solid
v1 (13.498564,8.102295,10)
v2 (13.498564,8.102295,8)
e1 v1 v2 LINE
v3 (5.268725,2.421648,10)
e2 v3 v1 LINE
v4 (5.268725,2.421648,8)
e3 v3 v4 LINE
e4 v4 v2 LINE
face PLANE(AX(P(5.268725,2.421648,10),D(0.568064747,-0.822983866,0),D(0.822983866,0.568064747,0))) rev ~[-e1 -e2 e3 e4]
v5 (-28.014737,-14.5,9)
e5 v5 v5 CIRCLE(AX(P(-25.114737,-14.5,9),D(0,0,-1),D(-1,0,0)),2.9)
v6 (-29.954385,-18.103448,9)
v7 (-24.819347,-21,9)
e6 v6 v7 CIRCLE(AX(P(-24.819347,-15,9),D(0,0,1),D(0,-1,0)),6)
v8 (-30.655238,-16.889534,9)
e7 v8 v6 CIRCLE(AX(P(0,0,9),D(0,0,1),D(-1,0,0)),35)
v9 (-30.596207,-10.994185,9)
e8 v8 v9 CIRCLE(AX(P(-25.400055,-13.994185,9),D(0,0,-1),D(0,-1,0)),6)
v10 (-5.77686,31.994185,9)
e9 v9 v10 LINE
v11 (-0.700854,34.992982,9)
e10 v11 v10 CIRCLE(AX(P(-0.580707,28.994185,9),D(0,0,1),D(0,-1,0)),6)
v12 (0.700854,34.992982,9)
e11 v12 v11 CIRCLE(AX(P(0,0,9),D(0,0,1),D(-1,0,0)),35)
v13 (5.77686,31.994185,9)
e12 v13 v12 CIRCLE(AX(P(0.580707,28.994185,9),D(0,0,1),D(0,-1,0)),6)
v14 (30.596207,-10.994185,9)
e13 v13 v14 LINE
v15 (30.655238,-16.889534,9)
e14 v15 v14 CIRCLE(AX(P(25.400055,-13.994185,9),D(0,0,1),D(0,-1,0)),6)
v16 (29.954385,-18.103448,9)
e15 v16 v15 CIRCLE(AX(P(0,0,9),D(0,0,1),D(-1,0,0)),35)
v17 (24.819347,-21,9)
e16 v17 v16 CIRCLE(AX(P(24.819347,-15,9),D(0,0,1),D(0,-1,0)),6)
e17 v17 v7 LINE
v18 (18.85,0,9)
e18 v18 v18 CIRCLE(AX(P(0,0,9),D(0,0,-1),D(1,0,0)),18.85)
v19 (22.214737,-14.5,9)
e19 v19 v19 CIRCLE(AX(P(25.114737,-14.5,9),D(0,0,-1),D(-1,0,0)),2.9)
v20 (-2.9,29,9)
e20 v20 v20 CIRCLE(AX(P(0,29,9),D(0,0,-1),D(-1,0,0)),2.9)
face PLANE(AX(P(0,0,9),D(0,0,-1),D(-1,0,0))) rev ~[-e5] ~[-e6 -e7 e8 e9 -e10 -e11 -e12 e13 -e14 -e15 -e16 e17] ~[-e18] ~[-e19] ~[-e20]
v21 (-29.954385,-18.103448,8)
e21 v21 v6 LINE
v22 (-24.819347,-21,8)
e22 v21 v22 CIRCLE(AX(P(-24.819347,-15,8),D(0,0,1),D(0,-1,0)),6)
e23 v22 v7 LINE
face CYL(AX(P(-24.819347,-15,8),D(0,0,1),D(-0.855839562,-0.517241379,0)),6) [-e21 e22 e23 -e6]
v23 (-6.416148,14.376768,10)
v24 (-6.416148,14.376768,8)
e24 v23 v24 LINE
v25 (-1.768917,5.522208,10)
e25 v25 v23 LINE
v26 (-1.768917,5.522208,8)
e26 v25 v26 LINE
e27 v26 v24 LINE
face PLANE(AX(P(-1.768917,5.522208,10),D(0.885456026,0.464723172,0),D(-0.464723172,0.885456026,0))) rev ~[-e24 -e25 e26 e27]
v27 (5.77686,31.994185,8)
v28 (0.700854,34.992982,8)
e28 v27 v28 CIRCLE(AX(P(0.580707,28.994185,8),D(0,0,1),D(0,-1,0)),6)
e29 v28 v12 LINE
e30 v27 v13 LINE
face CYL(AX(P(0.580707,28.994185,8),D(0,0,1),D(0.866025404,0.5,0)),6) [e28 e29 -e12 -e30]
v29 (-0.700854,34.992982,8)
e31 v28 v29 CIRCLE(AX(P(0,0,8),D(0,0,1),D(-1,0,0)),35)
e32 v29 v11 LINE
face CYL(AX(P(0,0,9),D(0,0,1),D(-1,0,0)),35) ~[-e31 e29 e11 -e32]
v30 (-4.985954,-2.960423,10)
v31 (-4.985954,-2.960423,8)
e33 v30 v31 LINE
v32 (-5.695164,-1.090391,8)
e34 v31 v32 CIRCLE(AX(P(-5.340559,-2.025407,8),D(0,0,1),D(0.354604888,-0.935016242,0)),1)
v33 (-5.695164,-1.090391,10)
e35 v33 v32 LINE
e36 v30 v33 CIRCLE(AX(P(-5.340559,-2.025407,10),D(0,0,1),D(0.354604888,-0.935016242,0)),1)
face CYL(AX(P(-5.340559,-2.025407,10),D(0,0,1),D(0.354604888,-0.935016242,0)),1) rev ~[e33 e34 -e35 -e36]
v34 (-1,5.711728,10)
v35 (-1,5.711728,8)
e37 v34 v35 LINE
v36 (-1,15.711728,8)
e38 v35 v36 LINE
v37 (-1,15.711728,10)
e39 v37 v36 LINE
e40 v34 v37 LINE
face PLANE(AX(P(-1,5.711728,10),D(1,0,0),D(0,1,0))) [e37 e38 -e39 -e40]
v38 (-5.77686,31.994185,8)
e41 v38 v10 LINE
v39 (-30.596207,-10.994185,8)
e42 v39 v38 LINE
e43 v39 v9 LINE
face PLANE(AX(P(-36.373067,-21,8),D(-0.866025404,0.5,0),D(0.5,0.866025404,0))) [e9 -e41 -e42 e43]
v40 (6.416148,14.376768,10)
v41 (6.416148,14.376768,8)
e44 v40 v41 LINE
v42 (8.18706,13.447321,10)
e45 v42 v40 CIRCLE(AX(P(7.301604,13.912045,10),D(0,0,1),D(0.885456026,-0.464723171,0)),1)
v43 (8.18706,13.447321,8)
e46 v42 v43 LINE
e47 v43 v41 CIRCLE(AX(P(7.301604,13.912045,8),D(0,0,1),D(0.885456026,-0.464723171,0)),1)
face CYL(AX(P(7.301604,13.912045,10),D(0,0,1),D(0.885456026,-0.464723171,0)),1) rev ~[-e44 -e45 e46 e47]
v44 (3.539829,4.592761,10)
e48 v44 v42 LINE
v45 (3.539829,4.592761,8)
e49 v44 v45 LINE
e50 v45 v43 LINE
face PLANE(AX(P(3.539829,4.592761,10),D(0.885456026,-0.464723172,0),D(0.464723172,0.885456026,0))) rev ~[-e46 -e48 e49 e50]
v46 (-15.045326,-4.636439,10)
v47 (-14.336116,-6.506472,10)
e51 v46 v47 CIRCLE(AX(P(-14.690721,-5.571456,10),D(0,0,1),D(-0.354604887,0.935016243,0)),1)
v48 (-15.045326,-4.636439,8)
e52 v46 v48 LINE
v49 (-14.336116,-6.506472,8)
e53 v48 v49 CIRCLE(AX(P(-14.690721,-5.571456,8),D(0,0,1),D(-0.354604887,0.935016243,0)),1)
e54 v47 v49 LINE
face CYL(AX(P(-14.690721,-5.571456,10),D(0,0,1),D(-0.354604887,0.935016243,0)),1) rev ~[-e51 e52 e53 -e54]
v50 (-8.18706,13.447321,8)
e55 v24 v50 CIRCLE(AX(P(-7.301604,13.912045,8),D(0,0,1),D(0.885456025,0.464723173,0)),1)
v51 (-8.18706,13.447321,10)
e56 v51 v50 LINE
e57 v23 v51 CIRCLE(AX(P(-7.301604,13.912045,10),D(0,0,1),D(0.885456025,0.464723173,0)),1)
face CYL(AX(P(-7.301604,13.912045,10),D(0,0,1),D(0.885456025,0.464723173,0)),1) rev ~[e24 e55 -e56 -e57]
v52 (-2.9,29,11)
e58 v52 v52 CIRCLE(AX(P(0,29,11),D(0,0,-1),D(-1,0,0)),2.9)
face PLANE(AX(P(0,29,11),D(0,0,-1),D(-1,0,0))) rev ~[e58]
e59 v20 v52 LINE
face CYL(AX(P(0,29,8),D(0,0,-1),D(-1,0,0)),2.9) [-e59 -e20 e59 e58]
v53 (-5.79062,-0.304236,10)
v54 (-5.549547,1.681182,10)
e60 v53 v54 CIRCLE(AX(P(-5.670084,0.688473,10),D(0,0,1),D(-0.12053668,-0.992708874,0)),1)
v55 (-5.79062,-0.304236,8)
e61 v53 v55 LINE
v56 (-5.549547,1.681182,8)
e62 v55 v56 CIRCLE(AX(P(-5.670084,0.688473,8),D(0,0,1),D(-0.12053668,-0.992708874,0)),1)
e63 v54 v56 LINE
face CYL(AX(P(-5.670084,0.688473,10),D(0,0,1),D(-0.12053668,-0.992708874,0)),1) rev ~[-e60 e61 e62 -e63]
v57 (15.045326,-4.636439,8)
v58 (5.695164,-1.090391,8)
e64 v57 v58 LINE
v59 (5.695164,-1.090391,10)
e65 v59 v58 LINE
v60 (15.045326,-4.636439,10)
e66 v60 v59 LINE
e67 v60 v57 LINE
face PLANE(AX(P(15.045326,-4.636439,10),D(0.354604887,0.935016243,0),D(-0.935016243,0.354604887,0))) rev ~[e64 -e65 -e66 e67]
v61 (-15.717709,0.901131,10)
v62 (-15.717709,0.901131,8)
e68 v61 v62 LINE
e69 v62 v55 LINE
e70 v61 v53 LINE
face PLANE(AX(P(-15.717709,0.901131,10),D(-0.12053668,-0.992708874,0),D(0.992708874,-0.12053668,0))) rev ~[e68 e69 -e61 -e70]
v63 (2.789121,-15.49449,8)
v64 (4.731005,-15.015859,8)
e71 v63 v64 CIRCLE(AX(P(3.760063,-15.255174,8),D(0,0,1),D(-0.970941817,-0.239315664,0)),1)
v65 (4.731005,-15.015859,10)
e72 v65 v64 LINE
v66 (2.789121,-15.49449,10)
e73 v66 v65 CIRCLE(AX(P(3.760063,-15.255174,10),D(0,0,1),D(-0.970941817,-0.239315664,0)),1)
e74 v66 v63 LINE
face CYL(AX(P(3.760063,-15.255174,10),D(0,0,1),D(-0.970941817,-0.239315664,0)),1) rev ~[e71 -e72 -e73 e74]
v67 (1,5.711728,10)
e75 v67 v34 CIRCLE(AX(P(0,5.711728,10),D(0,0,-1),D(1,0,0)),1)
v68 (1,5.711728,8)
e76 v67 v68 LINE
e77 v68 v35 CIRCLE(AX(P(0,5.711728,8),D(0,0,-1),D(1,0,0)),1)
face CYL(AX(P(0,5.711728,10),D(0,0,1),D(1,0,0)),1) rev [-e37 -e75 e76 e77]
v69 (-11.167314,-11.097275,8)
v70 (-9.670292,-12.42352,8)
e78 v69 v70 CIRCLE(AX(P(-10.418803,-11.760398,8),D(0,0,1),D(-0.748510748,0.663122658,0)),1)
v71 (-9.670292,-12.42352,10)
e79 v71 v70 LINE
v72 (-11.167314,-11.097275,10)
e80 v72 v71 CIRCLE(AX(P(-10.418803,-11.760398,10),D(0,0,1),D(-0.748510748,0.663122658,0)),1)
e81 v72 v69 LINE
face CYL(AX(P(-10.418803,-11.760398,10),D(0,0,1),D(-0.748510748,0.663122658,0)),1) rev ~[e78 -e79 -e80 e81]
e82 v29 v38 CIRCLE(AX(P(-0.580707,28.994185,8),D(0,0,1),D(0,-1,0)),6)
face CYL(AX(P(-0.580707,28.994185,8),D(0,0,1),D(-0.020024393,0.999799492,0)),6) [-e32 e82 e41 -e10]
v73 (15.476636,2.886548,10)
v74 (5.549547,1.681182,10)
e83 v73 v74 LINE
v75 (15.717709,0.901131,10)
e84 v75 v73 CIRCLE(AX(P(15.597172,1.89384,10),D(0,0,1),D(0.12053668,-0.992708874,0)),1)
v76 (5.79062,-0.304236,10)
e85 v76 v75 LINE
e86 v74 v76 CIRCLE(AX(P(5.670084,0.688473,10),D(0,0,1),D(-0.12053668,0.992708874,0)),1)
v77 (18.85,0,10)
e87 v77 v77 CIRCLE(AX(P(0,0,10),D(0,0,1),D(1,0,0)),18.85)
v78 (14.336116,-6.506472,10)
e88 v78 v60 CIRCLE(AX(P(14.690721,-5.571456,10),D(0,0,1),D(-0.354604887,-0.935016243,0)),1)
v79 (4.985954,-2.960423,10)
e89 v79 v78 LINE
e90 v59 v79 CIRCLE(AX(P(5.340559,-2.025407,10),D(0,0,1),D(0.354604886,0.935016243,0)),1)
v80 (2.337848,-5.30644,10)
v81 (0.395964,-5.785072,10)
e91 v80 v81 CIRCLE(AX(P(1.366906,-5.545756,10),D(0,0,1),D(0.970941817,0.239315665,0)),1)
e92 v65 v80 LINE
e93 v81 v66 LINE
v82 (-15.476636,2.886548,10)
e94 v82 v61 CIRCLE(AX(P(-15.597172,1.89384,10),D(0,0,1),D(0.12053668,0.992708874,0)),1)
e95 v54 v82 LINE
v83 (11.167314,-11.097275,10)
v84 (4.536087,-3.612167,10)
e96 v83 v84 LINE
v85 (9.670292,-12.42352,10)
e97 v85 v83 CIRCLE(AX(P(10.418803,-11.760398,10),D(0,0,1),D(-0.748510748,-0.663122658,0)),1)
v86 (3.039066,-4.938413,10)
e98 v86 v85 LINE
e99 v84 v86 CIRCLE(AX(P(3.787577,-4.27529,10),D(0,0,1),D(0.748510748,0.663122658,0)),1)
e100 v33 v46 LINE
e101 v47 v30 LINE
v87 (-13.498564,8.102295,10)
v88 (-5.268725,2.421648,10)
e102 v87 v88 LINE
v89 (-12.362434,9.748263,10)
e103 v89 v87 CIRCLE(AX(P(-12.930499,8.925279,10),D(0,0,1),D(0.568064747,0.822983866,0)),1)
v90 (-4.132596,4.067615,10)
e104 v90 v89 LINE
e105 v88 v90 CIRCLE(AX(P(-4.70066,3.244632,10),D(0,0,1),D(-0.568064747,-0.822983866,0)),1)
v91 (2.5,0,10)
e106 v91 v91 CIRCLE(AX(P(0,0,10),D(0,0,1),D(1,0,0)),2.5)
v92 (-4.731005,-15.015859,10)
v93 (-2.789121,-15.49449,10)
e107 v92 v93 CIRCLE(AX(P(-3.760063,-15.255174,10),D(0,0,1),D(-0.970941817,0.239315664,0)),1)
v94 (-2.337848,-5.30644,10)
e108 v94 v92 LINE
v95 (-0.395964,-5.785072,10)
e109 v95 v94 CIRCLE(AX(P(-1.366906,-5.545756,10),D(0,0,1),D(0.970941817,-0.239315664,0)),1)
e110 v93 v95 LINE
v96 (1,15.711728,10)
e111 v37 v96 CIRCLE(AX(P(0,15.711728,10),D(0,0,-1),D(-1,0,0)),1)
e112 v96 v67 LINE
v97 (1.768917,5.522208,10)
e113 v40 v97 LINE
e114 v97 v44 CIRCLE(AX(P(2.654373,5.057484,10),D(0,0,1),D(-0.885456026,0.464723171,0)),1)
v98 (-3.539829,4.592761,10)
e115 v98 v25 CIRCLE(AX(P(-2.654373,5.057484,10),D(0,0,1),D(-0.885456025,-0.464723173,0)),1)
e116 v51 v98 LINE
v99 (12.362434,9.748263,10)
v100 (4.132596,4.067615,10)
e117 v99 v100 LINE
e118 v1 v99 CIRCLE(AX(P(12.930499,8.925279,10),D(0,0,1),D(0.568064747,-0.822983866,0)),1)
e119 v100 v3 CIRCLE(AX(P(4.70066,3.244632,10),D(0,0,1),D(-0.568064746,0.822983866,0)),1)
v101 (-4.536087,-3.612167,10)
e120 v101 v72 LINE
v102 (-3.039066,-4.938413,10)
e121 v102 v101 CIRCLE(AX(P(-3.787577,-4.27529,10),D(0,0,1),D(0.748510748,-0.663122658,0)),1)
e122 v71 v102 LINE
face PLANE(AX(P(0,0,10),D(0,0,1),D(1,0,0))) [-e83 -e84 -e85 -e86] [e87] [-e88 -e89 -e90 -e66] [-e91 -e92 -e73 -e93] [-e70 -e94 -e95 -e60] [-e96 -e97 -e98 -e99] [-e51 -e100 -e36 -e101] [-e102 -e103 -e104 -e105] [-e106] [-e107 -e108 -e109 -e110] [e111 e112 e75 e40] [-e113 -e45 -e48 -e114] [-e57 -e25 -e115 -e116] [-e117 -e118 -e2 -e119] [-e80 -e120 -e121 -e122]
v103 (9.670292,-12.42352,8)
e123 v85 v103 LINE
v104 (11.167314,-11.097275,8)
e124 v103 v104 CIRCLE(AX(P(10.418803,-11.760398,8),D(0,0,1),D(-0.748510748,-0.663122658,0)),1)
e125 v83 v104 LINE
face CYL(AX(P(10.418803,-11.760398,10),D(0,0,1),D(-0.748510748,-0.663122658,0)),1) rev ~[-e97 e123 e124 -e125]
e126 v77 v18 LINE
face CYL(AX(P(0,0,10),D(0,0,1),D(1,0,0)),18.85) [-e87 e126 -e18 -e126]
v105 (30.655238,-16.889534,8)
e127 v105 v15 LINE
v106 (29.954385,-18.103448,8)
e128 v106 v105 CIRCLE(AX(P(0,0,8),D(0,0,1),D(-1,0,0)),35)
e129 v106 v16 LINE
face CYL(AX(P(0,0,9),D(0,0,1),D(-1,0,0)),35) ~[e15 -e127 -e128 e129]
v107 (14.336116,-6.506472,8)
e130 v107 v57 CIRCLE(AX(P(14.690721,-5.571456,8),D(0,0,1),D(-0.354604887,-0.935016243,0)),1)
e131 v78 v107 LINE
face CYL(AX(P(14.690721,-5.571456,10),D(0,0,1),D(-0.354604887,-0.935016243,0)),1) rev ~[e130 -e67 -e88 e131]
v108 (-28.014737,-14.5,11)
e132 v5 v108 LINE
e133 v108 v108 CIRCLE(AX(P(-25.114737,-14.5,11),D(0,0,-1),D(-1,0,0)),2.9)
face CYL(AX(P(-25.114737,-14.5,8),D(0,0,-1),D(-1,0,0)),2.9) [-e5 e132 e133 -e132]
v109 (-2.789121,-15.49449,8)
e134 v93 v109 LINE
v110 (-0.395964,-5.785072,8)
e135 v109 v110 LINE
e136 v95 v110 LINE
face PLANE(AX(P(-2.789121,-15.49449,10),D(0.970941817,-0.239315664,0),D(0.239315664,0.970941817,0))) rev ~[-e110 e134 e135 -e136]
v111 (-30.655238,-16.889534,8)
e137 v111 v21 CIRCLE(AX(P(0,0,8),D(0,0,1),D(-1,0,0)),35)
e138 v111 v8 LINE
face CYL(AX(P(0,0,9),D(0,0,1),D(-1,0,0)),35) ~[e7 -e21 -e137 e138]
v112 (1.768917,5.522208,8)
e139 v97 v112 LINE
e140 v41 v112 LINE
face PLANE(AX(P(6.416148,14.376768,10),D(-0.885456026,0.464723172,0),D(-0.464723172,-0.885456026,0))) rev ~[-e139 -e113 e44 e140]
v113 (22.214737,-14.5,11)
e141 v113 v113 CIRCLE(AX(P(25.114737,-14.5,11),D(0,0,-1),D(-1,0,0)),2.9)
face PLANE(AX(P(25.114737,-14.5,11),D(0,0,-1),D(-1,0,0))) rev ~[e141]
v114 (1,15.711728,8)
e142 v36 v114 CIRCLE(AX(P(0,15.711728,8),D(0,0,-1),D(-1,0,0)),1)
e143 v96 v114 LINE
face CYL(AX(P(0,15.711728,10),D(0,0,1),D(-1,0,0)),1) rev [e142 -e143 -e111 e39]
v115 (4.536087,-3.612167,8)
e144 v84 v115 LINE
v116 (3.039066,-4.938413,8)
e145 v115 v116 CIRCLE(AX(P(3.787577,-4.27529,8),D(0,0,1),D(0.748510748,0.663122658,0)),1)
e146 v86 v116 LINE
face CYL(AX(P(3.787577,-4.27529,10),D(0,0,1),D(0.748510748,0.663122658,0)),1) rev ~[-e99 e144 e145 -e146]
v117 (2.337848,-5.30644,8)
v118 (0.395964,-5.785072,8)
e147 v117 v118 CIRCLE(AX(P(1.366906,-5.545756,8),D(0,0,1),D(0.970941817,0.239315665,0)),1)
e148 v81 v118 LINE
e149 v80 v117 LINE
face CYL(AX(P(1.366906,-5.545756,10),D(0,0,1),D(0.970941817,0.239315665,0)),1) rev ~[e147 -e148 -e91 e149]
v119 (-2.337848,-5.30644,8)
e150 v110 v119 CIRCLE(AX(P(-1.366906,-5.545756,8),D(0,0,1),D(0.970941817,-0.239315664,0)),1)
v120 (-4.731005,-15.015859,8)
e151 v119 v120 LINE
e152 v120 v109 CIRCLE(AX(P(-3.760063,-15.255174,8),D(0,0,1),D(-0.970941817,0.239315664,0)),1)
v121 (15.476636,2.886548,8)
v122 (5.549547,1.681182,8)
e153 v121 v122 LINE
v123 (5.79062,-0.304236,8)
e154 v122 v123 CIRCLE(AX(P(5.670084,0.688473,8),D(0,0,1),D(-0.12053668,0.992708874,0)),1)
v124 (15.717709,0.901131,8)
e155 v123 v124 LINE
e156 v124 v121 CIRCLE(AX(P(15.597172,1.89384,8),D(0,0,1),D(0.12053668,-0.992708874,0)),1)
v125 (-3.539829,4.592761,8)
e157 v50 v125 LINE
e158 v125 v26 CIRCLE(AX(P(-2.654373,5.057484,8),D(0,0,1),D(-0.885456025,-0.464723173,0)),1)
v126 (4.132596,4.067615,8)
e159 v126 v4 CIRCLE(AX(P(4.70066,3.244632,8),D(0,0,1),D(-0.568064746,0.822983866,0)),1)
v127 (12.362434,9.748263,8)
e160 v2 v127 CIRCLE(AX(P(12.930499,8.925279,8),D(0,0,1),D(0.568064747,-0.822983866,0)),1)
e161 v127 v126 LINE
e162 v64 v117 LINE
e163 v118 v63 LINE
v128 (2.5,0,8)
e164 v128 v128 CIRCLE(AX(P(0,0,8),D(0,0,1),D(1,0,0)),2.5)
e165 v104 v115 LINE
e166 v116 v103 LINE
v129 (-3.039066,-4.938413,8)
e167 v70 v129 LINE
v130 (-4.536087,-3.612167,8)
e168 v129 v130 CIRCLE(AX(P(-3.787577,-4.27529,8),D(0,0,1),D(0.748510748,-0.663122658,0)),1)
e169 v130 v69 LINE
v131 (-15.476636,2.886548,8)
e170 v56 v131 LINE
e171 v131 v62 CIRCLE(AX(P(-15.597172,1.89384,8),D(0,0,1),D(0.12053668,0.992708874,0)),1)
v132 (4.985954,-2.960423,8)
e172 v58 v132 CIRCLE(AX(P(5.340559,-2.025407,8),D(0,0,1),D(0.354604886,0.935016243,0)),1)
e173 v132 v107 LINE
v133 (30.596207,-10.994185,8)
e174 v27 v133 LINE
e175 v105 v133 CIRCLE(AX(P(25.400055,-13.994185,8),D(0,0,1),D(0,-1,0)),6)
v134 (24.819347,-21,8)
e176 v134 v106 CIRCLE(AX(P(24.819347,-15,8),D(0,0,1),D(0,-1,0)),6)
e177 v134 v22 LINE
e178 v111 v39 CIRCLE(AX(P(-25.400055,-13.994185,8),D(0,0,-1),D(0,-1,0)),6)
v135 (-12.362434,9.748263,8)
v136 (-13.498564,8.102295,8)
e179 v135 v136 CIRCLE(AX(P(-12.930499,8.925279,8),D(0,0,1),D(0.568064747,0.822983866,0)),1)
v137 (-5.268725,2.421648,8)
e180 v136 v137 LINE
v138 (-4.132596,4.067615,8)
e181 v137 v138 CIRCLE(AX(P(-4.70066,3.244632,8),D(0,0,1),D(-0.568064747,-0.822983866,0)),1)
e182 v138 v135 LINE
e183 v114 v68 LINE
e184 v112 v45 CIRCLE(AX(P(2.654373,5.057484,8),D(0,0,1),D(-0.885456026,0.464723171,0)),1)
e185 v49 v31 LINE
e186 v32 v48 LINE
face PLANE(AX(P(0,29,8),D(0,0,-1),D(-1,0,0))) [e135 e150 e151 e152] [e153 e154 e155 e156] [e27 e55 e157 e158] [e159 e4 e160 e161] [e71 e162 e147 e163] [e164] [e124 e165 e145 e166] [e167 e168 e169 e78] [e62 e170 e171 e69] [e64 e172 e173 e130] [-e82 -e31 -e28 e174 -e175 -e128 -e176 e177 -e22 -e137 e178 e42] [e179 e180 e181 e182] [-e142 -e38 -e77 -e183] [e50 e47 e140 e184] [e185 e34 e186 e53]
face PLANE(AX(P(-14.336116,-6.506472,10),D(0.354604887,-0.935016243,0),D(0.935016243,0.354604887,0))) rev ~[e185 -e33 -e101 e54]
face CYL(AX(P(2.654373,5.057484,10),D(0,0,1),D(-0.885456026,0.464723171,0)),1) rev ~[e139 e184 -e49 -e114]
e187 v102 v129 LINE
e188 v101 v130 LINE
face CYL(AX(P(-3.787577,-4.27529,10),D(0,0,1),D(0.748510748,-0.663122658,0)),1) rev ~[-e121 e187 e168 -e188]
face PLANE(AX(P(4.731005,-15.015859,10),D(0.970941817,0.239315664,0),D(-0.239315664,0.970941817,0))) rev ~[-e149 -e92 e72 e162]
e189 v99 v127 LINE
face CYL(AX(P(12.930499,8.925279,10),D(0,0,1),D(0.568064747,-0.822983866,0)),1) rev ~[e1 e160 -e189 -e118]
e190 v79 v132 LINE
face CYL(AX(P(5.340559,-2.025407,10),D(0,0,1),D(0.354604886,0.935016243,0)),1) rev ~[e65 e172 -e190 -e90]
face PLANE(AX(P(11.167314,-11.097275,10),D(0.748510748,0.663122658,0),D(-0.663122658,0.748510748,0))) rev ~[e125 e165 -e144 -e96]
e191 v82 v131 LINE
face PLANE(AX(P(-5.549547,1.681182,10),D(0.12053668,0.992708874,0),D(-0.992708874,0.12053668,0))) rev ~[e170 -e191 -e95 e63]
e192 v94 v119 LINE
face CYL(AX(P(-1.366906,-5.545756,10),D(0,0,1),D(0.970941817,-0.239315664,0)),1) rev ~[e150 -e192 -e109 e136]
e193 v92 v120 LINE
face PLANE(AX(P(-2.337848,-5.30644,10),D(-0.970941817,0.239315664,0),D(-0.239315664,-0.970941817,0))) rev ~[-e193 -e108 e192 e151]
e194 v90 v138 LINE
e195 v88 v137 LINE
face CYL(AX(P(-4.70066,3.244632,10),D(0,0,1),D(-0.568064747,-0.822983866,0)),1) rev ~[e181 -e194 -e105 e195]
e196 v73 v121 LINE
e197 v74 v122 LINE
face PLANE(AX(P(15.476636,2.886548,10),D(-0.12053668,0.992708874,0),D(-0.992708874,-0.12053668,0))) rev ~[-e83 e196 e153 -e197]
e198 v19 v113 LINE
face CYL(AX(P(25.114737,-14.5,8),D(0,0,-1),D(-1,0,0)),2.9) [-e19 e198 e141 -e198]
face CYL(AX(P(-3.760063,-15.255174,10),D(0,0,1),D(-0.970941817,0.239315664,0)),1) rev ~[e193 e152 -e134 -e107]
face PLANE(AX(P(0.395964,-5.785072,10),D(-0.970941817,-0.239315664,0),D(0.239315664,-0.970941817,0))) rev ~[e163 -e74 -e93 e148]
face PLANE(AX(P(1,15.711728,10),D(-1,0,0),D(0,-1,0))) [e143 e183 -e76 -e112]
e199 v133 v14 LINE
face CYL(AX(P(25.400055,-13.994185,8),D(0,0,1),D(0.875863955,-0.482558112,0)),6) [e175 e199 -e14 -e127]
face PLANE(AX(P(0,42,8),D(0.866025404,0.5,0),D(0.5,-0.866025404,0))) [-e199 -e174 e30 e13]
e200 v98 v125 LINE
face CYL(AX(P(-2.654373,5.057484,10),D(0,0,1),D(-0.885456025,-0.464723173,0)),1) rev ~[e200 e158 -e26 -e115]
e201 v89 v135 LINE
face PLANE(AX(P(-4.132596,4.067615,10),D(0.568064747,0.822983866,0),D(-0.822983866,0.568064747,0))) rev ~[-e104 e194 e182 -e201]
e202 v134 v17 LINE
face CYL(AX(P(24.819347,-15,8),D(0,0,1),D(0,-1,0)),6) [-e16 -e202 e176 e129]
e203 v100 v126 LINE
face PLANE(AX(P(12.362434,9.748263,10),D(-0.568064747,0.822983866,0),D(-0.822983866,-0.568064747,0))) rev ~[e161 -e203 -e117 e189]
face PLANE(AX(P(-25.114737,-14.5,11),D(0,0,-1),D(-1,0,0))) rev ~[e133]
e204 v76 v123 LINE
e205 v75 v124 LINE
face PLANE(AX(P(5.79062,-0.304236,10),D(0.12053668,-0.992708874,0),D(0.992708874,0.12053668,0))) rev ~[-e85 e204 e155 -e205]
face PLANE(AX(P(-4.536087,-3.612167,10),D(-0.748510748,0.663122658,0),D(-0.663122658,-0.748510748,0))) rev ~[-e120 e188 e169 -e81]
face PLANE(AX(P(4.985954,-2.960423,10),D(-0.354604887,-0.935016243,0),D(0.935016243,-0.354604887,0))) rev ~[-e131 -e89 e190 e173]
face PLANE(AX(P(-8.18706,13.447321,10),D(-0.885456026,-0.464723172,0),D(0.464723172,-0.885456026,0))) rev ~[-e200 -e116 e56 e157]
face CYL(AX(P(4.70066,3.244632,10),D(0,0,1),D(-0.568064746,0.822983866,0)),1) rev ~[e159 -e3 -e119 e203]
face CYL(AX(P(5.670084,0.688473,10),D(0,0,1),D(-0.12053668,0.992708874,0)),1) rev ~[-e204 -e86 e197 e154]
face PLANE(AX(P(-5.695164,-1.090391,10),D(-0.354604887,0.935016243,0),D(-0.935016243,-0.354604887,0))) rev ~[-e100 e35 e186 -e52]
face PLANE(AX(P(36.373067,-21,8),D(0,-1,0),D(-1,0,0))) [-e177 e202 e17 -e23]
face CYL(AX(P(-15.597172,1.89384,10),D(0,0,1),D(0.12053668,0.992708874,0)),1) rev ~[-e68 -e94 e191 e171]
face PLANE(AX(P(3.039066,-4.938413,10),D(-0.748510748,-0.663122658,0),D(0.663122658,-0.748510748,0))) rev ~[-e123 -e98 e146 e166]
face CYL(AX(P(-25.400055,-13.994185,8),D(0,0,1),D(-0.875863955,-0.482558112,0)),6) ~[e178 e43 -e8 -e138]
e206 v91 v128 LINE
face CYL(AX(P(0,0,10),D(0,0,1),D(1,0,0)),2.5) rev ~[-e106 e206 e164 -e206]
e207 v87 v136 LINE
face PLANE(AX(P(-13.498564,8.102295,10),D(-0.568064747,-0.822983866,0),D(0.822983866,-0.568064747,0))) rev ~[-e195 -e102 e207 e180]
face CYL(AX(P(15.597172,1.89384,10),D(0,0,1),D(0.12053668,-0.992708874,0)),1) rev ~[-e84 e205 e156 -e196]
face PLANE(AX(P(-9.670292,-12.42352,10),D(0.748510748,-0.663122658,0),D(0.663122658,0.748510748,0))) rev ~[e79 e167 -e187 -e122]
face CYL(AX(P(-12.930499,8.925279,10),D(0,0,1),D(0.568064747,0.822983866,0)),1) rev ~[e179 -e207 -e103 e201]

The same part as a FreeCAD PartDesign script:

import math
import FreeCAD as App
import Part
import Sketcher

V = App.Vector
Q = App.Units.Quantity


def edges_at(feature, points):
    """Names of the edges that pass closest to the given points."""
    edges = feature.Shape.Edges
    near = lambda p: min(range(len(edges)), key=lambda i: edges[i].distToShape(Part.Vertex(*p))[0])
    return sorted({f"Edge{near(p) + 1}" for p in points})

doc = App.newDocument("Part")
body = doc.addObject("PartDesign::Body", "Body")

# Sketch on XY plane
sketch1 = body.newObject("Sketcher::SketchObject", "Sketch")
sketch1.AttachmentSupport = (doc.getObject("XY_Plane"), [""])
sketch1.MapMode = "FlatFace"
sketch1.AttachmentOffset = App.Placement(V(0, 0, 10), App.Rotation())
sketch1.addGeometry(Part.Circle(V(0, 0, 0), V(0, 0, 1), 18.9), False)
sketch1.addGeometry(Part.LineSegment(V(-3, -4.9, 0), V(-9.7, -12.4, 0)), False)
sketch1.addGeometry(Part.ArcOfCircle(Part.Circle(V(-10.4, -11.8, 0), V(0, 0, 1), 1), math.radians(138), math.radians(318)), False)
sketch1.addGeometry(Part.LineSegment(V(-11.2, -11.1, 0), V(-4.5, -3.6, 0)), False)
sketch1.addGeometry(Part.ArcOfCircle(Part.Circle(V(-3.8, -4.3, 0), V(0, 0, 1), 1), math.radians(-42), math.radians(138)), False)
sketch1.addGeometry(Part.LineSegment(V(-0.4, -5.8, 0), V(-2.8, -15.5, 0)), False)
sketch1.addGeometry(Part.ArcOfCircle(Part.Circle(V(-3.8, -15.3, 0), V(0, 0, 1), 1), math.radians(166), math.radians(346)), False)
sketch1.addGeometry(Part.LineSegment(V(-4.7, -15, 0), V(-2.3, -5.3, 0)), False)
sketch1.addGeometry(Part.ArcOfCircle(Part.Circle(V(-1.4, -5.5, 0), V(0, 0, 1), 1), math.radians(-14), math.radians(166)), False)
sketch1.addGeometry(Part.LineSegment(V(-5, -3, 0), V(-14.3, -6.5, 0)), False)
sketch1.addGeometry(Part.ArcOfCircle(Part.Circle(V(-14.7, -5.6, 0), V(0, 0, 1), 1), math.radians(111), math.radians(291)), False)
sketch1.addGeometry(Part.LineSegment(V(-15, -4.6, 0), V(-5.7, -1.1, 0)), False)
sketch1.addGeometry(Part.ArcOfCircle(Part.Circle(V(-5.3, -2, 0), V(0, 0, 1), 1), math.radians(-69), math.radians(111)), False)
sketch1.addGeometry(Part.Circle(V(0, 0, 0), V(0, 0, 1), 2.5), False)
sketch1.addGeometry(Part.LineSegment(V(2.3, -5.3, 0), V(4.7, -15, 0)), False)
sketch1.addGeometry(Part.ArcOfCircle(Part.Circle(V(3.8, -15.3, 0), V(0, 0, 1), 1), math.radians(-166), math.radians(14)), False)
sketch1.addGeometry(Part.LineSegment(V(2.8, -15.5, 0), V(0.4, -5.8, 0)), False)
sketch1.addGeometry(Part.ArcOfCircle(Part.Circle(V(1.4, -5.5, 0), V(0, 0, 1), 1), math.radians(14), math.radians(194)), False)
sketch1.addGeometry(Part.LineSegment(V(4.5, -3.6, 0), V(11.2, -11.1, 0)), False)
sketch1.addGeometry(Part.ArcOfCircle(Part.Circle(V(10.4, -11.8, 0), V(0, 0, 1), 1), math.radians(-138), math.radians(42)), False)
sketch1.addGeometry(Part.LineSegment(V(9.7, -12.4, 0), V(3, -4.9, 0)), False)
sketch1.addGeometry(Part.ArcOfCircle(Part.Circle(V(3.8, -4.3, 0), V(0, 0, 1), 1), math.radians(42), math.radians(222)), False)
sketch1.addGeometry(Part.LineSegment(V(5.7, -1.1, 0), V(15, -4.6, 0)), False)
sketch1.addGeometry(Part.ArcOfCircle(Part.Circle(V(14.7, -5.6, 0), V(0, 0, 1), 1), math.radians(-111), math.radians(69)), False)
sketch1.addGeometry(Part.LineSegment(V(14.3, -6.5, 0), V(5, -3, 0)), False)
sketch1.addGeometry(Part.ArcOfCircle(Part.Circle(V(5.3, -2, 0), V(0, 0, 1), 1), math.radians(69), math.radians(249)), False)
sketch1.addGeometry(Part.LineSegment(V(-5.8, -0.3, 0), V(-15.7, 0.9, 0)), False)
sketch1.addGeometry(Part.ArcOfCircle(Part.Circle(V(-15.6, 1.9, 0), V(0, 0, 1), 1), math.radians(83), math.radians(263)), False)
sketch1.addGeometry(Part.LineSegment(V(-15.5, 2.9, 0), V(-5.5, 1.7, 0)), False)
sketch1.addGeometry(Part.ArcOfCircle(Part.Circle(V(-5.7, 0.7, 0), V(0, 0, 1), 1), math.radians(-97), math.radians(83)), False)
sketch1.addGeometry(Part.LineSegment(V(-5.3, 2.4, 0), V(-13.5, 8.1, 0)), False)
sketch1.addGeometry(Part.ArcOfCircle(Part.Circle(V(-12.9, 8.9, 0), V(0, 0, 1), 1), math.radians(55), math.radians(235)), False)
sketch1.addGeometry(Part.LineSegment(V(-12.4, 9.7, 0), V(-4.1, 4.1, 0)), False)
sketch1.addGeometry(Part.ArcOfCircle(Part.Circle(V(-4.7, 3.2, 0), V(0, 0, 1), 1), math.radians(-125), math.radians(55)), False)
sketch1.addGeometry(Part.LineSegment(V(-3.5, 4.6, 0), V(-8.2, 13.4, 0)), False)
sketch1.addGeometry(Part.ArcOfCircle(Part.Circle(V(-7.3, 13.9, 0), V(0, 0, 1), 1), math.radians(28), math.radians(208)), False)
sketch1.addGeometry(Part.LineSegment(V(-6.4, 14.4, 0), V(-1.8, 5.5, 0)), False)
sketch1.addGeometry(Part.ArcOfCircle(Part.Circle(V(-2.7, 5.1, 0), V(0, 0, 1), 1), math.radians(-152), math.radians(28)), False)
sketch1.addGeometry(Part.ArcOfCircle(Part.Circle(V(0, 15.7, 0), V(0, 0, 1), 1), math.radians(0), math.radians(180)), False)
sketch1.addGeometry(Part.LineSegment(V(1, 15.7, 0), V(1, 5.7, 0)), False)
sketch1.addGeometry(Part.ArcOfCircle(Part.Circle(V(0, 5.7, 0), V(0, 0, 1), 1), math.radians(180), math.radians(360)), False)
sketch1.addGeometry(Part.LineSegment(V(-1, 5.7, 0), V(-1, 15.7, 0)), False)
sketch1.addGeometry(Part.LineSegment(V(5.5, 1.7, 0), V(15.5, 2.9, 0)), False)
sketch1.addGeometry(Part.ArcOfCircle(Part.Circle(V(15.6, 1.9, 0), V(0, 0, 1), 1), math.radians(-83), math.radians(97)), False)
sketch1.addGeometry(Part.LineSegment(V(15.7, 0.9, 0), V(5.8, -0.3, 0)), False)
sketch1.addGeometry(Part.ArcOfCircle(Part.Circle(V(5.7, 0.7, 0), V(0, 0, 1), 1), math.radians(97), math.radians(277)), False)
sketch1.addGeometry(Part.LineSegment(V(4.1, 4.1, 0), V(12.4, 9.7, 0)), False)
sketch1.addGeometry(Part.ArcOfCircle(Part.Circle(V(12.9, 8.9, 0), V(0, 0, 1), 1), math.radians(-55), math.radians(125)), False)
sketch1.addGeometry(Part.LineSegment(V(13.5, 8.1, 0), V(5.3, 2.4, 0)), False)
sketch1.addGeometry(Part.ArcOfCircle(Part.Circle(V(4.7, 3.2, 0), V(0, 0, 1), 1), math.radians(125), math.radians(305)), False)
sketch1.addGeometry(Part.LineSegment(V(1.8, 5.5, 0), V(6.4, 14.4, 0)), False)
sketch1.addGeometry(Part.ArcOfCircle(Part.Circle(V(7.3, 13.9, 0), V(0, 0, 1), 1), math.radians(-28), math.radians(152)), False)
sketch1.addGeometry(Part.LineSegment(V(8.2, 13.4, 0), V(3.5, 4.6, 0)), False)
sketch1.addGeometry(Part.ArcOfCircle(Part.Circle(V(2.7, 5.1, 0), V(0, 0, 1), 1), math.radians(152), math.radians(332)), False)
sketch1.addConstraint(Sketcher.Constraint("Tangent", 1, 2, 2, 2))
sketch1.addConstraint(Sketcher.Constraint("Tangent", 2, 1, 3, 1))
sketch1.addConstraint(Sketcher.Constraint("Tangent", 3, 2, 4, 2))
sketch1.addConstraint(Sketcher.Constraint("Tangent", 4, 1, 1, 1))
sketch1.addConstraint(Sketcher.Constraint("Tangent", 5, 2, 6, 2))
sketch1.addConstraint(Sketcher.Constraint("Tangent", 6, 1, 7, 1))
sketch1.addConstraint(Sketcher.Constraint("Tangent", 7, 2, 8, 2))
sketch1.addConstraint(Sketcher.Constraint("Tangent", 8, 1, 5, 1))
sketch1.addConstraint(Sketcher.Constraint("Tangent", 9, 2, 10, 2))
sketch1.addConstraint(Sketcher.Constraint("Tangent", 10, 1, 11, 1))
sketch1.addConstraint(Sketcher.Constraint("Tangent", 11, 2, 12, 2))
sketch1.addConstraint(Sketcher.Constraint("Tangent", 12, 1, 9, 1))
sketch1.addConstraint(Sketcher.Constraint("Tangent", 14, 2, 15, 2))
sketch1.addConstraint(Sketcher.Constraint("Tangent", 15, 1, 16, 1))
sketch1.addConstraint(Sketcher.Constraint("Tangent", 16, 2, 17, 2))
sketch1.addConstraint(Sketcher.Constraint("Tangent", 17, 1, 14, 1))
sketch1.addConstraint(Sketcher.Constraint("Tangent", 18, 2, 19, 2))
sketch1.addConstraint(Sketcher.Constraint("Tangent", 19, 1, 20, 1))
sketch1.addConstraint(Sketcher.Constraint("Tangent", 20, 2, 21, 2))
sketch1.addConstraint(Sketcher.Constraint("Tangent", 21, 1, 18, 1))
sketch1.addConstraint(Sketcher.Constraint("Tangent", 22, 2, 23, 2))
sketch1.addConstraint(Sketcher.Constraint("Tangent", 23, 1, 24, 1))
sketch1.addConstraint(Sketcher.Constraint("Tangent", 24, 2, 25, 2))
sketch1.addConstraint(Sketcher.Constraint("Tangent", 25, 1, 22, 1))
sketch1.addConstraint(Sketcher.Constraint("Tangent", 26, 2, 27, 2))
sketch1.addConstraint(Sketcher.Constraint("Tangent", 27, 1, 28, 1))
sketch1.addConstraint(Sketcher.Constraint("Tangent", 28, 2, 29, 2))
sketch1.addConstraint(Sketcher.Constraint("Tangent", 29, 1, 26, 1))
sketch1.addConstraint(Sketcher.Constraint("Tangent", 30, 2, 31, 2))
sketch1.addConstraint(Sketcher.Constraint("Tangent", 31, 1, 32, 1))
sketch1.addConstraint(Sketcher.Constraint("Tangent", 32, 2, 33, 2))
sketch1.addConstraint(Sketcher.Constraint("Tangent", 33, 1, 30, 1))
sketch1.addConstraint(Sketcher.Constraint("Tangent", 34, 2, 35, 2))
sketch1.addConstraint(Sketcher.Constraint("Tangent", 35, 1, 36, 1))
sketch1.addConstraint(Sketcher.Constraint("Tangent", 36, 2, 37, 2))
sketch1.addConstraint(Sketcher.Constraint("Tangent", 37, 1, 34, 1))
sketch1.addConstraint(Sketcher.Constraint("Tangent", 38, 1, 39, 1))
sketch1.addConstraint(Sketcher.Constraint("Tangent", 39, 2, 40, 2))
sketch1.addConstraint(Sketcher.Constraint("Tangent", 40, 1, 41, 1))
sketch1.addConstraint(Sketcher.Constraint("Tangent", 41, 2, 38, 2))
sketch1.addConstraint(Sketcher.Constraint("Tangent", 42, 2, 43, 2))
sketch1.addConstraint(Sketcher.Constraint("Tangent", 43, 1, 44, 1))
sketch1.addConstraint(Sketcher.Constraint("Tangent", 44, 2, 45, 2))
sketch1.addConstraint(Sketcher.Constraint("Tangent", 45, 1, 42, 1))
sketch1.addConstraint(Sketcher.Constraint("Tangent", 46, 2, 47, 2))
sketch1.addConstraint(Sketcher.Constraint("Tangent", 47, 1, 48, 1))
sketch1.addConstraint(Sketcher.Constraint("Tangent", 48, 2, 49, 2))
sketch1.addConstraint(Sketcher.Constraint("Tangent", 49, 1, 46, 1))
sketch1.addConstraint(Sketcher.Constraint("Tangent", 50, 2, 51, 2))
sketch1.addConstraint(Sketcher.Constraint("Tangent", 51, 1, 52, 1))
sketch1.addConstraint(Sketcher.Constraint("Tangent", 52, 2, 53, 2))
sketch1.addConstraint(Sketcher.Constraint("Tangent", 53, 1, 50, 1))
sketch1.addConstraint(Sketcher.Constraint("Vertical", 39))
sketch1.addConstraint(Sketcher.Constraint("Vertical", 41))
sketch1.addConstraint(Sketcher.Constraint("Coincident", 0, 3, -1, 1))
sketch1.addConstraint(Sketcher.Constraint("Coincident", 13, 3, -1, 1))
sketch1.addConstraint(Sketcher.Constraint("Equal", 2, 4))
sketch1.addConstraint(Sketcher.Constraint("Equal", 4, 6))
sketch1.addConstraint(Sketcher.Constraint("Equal", 6, 8))
sketch1.addConstraint(Sketcher.Constraint("Equal", 8, 10))
sketch1.addConstraint(Sketcher.Constraint("Equal", 10, 12))
sketch1.addConstraint(Sketcher.Constraint("Equal", 12, 15))
sketch1.addConstraint(Sketcher.Constraint("Equal", 15, 17))
sketch1.addConstraint(Sketcher.Constraint("Equal", 17, 19))
sketch1.addConstraint(Sketcher.Constraint("Equal", 19, 21))
sketch1.addConstraint(Sketcher.Constraint("Equal", 21, 23))
sketch1.addConstraint(Sketcher.Constraint("Equal", 23, 25))
sketch1.addConstraint(Sketcher.Constraint("Equal", 25, 27))
sketch1.addConstraint(Sketcher.Constraint("Equal", 27, 29))
sketch1.addConstraint(Sketcher.Constraint("Equal", 29, 31))
sketch1.addConstraint(Sketcher.Constraint("Equal", 31, 33))
sketch1.addConstraint(Sketcher.Constraint("Equal", 33, 35))
sketch1.addConstraint(Sketcher.Constraint("Equal", 35, 37))
sketch1.addConstraint(Sketcher.Constraint("Equal", 37, 38))
sketch1.addConstraint(Sketcher.Constraint("Equal", 40, 43))
sketch1.addConstraint(Sketcher.Constraint("Equal", 43, 45))
sketch1.addConstraint(Sketcher.Constraint("Equal", 45, 47))
sketch1.addConstraint(Sketcher.Constraint("Equal", 47, 49))
sketch1.addConstraint(Sketcher.Constraint("Equal", 49, 51))
sketch1.addConstraint(Sketcher.Constraint("Equal", 51, 53))
sketch1.addConstraint(Sketcher.Constraint("Symmetric", 6, 3, 15, 3, -2))
sketch1.addConstraint(Sketcher.Constraint("Symmetric", 8, 3, 17, 3, -2))
sketch1.addConstraint(Sketcher.Constraint("Symmetric", 2, 3, 19, 3, -2))
sketch1.addConstraint(Sketcher.Constraint("Symmetric", 4, 3, 21, 3, -2))
sketch1.addConstraint(Sketcher.Constraint("Symmetric", 10, 3, 23, 3, -2))
sketch1.addConstraint(Sketcher.Constraint("Symmetric", 12, 3, 25, 3, -2))
sketch1.addConstraint(Sketcher.Constraint("Symmetric", 27, 3, 43, 3, -2))
sketch1.addConstraint(Sketcher.Constraint("Symmetric", 29, 3, 45, 3, -2))
sketch1.addConstraint(Sketcher.Constraint("Symmetric", 31, 3, 47, 3, -2))
sketch1.addConstraint(Sketcher.Constraint("Symmetric", 33, 3, 49, 3, -2))
sketch1.addConstraint(Sketcher.Constraint("Symmetric", 35, 3, 51, 3, -2))
sketch1.addConstraint(Sketcher.Constraint("Symmetric", 37, 3, 53, 3, -2))
sketch1.addConstraint(Sketcher.Constraint("PointOnObject", 38, 3, -2))
sketch1.addConstraint(Sketcher.Constraint("Equal", 3, 5))
sketch1.addConstraint(Sketcher.Constraint("Equal", 7, 9))
sketch1.addConstraint(Sketcher.Constraint("Equal", 24, 26))
sketch1.addConstraint(Sketcher.Constraint("Equal", 28, 30))
sketch1.addConstraint(Sketcher.Constraint("Equal", 32, 34))
sketch1.addConstraint(Sketcher.Constraint("Diameter", 13, Q("5 mm")))
sketch1.addConstraint(Sketcher.Constraint("Radius", 2, Q("1 mm")))
sketch1.addConstraint(Sketcher.Constraint("Diameter", 0, Q("37.7 mm")))
sketch1.addConstraint(Sketcher.Constraint("DistanceY", 39, 2, 39, 1, Q("10 mm")))
sketch1.addConstraint(Sketcher.Constraint("Distance", 1, Q("10 mm")))
sketch1.addConstraint(Sketcher.Constraint("DistanceX", 31, 3, -1, 1, Q("12.930499 mm")))
sketch1.addConstraint(Sketcher.Constraint("DistanceY", 4, 3, -1, 1, Q("4.27529 mm")))
sketch1.addConstraint(Sketcher.Constraint("DistanceX", 10, 3, -1, 1, Q("14.690721 mm")))
sketch1.addConstraint(Sketcher.Constraint("DistanceX", 12, 3, -1, 1, Q("5.340559 mm")))
sketch1.addConstraint(Sketcher.Constraint("DistanceY", -1, 1, 27, 3, Q("1.89384 mm")))
sketch1.addConstraint(Sketcher.Constraint("DistanceY", -1, 1, 31, 3, Q("8.925279 mm")))
sketch1.addConstraint(Sketcher.Constraint("DistanceX", 33, 3, -1, 1, Q("4.70066 mm")))
sketch1.addConstraint(Sketcher.Constraint("DistanceY", -1, 1, 38, 3, Q("15.711728 mm")))
sketch1.addConstraint(Sketcher.Constraint("DistanceY", 1, 2, -1, 1, Q("12.42352 mm")))
sketch1.addConstraint(Sketcher.Constraint("DistanceX", 5, 2, -1, 1, Q("2.789121 mm")))
sketch1.addConstraint(Sketcher.Constraint("DistanceY", 5, 2, -1, 1, Q("15.49449 mm")))
sketch1.addConstraint(Sketcher.Constraint("DistanceY", 6, 1, -1, 1, Q("15.015859 mm")))
sketch1.addConstraint(Sketcher.Constraint("DistanceY", 9, 2, -1, 1, Q("6.506472 mm")))
sketch1.addConstraint(Sketcher.Constraint("DistanceX", 26, 2, -1, 1, Q("15.717709 mm")))
sketch1.addConstraint(Sketcher.Constraint("DistanceY", -1, 1, 26, 2, Q("0.901131 mm")))
sketch1.addConstraint(Sketcher.Constraint("DistanceX", 34, 2, -1, 1, Q("8.18706 mm")))
sketch1.addConstraint(Sketcher.Constraint("DistanceY", -1, 1, 34, 2, Q("13.447321 mm")))
sketch1.addConstraint(Sketcher.Constraint("DistanceX", 35, 1, -1, 1, Q("6.416148 mm")))
sketch1.addConstraint(Sketcher.Constraint("DistanceX", 2, 3, -1, 1, Q("10.418803 mm")))
pad1 = body.newObject("PartDesign::Pad", "Pad")
pad1.Profile = sketch1
pad1.Length = 2
pad1.Reversed = True

# Sketch on XY plane
sketch2 = body.newObject("Sketcher::SketchObject", "Sketch001")
sketch2.AttachmentSupport = (doc.getObject("XY_Plane"), [""])
sketch2.MapMode = "FlatFace"
sketch2.AttachmentOffset = App.Placement(V(0, 0, 9), App.Rotation())
sketch2.addGeometry(Part.Circle(V(0, 0, 0), V(0, 0, 1), 35), False)
sketch2.addGeometry(Part.Circle(V(0, 0, 0), V(0, 0, 1), 19), False)
sketch2.addConstraint(Sketcher.Constraint("Coincident", 0, 3, -1, 1))
sketch2.addConstraint(Sketcher.Constraint("Coincident", 1, 3, -1, 1))
sketch2.addConstraint(Sketcher.Constraint("Diameter", 0, Q("70 mm")))
sketch2.addConstraint(Sketcher.Constraint("Diameter", 1, Q("37.7 mm")))
pad2 = body.newObject("PartDesign::Pad", "Pad001")
pad2.Profile = sketch2
pad2.Length = 1
pad2.Reversed = True

# Sketch on XY plane
sketch3 = body.newObject("Sketcher::SketchObject", "Sketch002")
sketch3.AttachmentSupport = (doc.getObject("XY_Plane"), [""])
sketch3.MapMode = "FlatFace"
sketch3.AttachmentOffset = App.Placement(V(0, 0, 8), App.Rotation())
sketch3.addGeometry(Part.Circle(V(0, 29, 0), V(0, 0, 1), 2.9), False)
sketch3.addGeometry(Part.Circle(V(-25.1, -14.5, 0), V(0, 0, 1), 2.9), False)
sketch3.addGeometry(Part.Circle(V(25.1, -14.5, 0), V(0, 0, 1), 2.9), False)
sketch3.addConstraint(Sketcher.Constraint("Equal", 0, 1))
sketch3.addConstraint(Sketcher.Constraint("Equal", 1, 2))
sketch3.addConstraint(Sketcher.Constraint("Symmetric", 1, 3, 2, 3, -2))
sketch3.addConstraint(Sketcher.Constraint("PointOnObject", 0, 3, -2))
sketch3.addConstraint(Sketcher.Constraint("Diameter", 0, Q("5.8 mm")))
sketch3.addConstraint(Sketcher.Constraint("DistanceY", -1, 1, 0, 3, Q("29 mm")))
sketch3.addConstraint(Sketcher.Constraint("DistanceY", 1, 3, -1, 1, Q("14.5 mm")))
sketch3.addConstraint(Sketcher.Constraint("DistanceX", 1, 3, -1, 1, Q("25.114737 mm")))
pad3 = body.newObject("PartDesign::Pad", "Pad002")
pad3.Profile = sketch3
pad3.Length = 3

# Sketch on XY plane
sketch4 = body.newObject("Sketcher::SketchObject", "Sketch003")
sketch4.AttachmentSupport = (doc.getObject("XY_Plane"), [""])
sketch4.MapMode = "FlatFace"
sketch4.AttachmentOffset = App.Placement(V(0, 0, 9), App.Rotation())
sketch4.addGeometry(Part.Circle(V(0, 30, 0), V(0, 0, 1), 5), False)
sketch4.addGeometry(Part.Circle(V(-26, -15, 0), V(0, 0, 1), 5), False)
sketch4.addGeometry(Part.Circle(V(26, -15, 0), V(0, 0, 1), 5), False)
sketch4.addConstraint(Sketcher.Constraint("Equal", 0, 1))
sketch4.addConstraint(Sketcher.Constraint("Equal", 1, 2))
sketch4.addConstraint(Sketcher.Constraint("Symmetric", 1, 3, 2, 3, -2))
sketch4.addConstraint(Sketcher.Constraint("PointOnObject", 0, 3, -2))
sketch4.addConstraint(Sketcher.Constraint("Diameter", 0, Q("10 mm")))
sketch4.addConstraint(Sketcher.Constraint("DistanceY", -1, 1, 0, 3, Q("30 mm")))
sketch4.addConstraint(Sketcher.Constraint("DistanceY", 1, 3, -1, 1, Q("15 mm")))
sketch4.addConstraint(Sketcher.Constraint("DistanceX", 1, 3, -1, 1, Q("25.980762 mm")))
pad4 = body.newObject("PartDesign::Pad", "Pad003")
pad4.Profile = sketch4
pad4.Length = 1
pad4.Reversed = True

# Sketch on XY plane
sketch5 = body.newObject("Sketcher::SketchObject", "Sketch004")
sketch5.AttachmentSupport = (doc.getObject("XY_Plane"), [""])
sketch5.MapMode = "FlatFace"
sketch5.AttachmentOffset = App.Placement(V(0, 0, 8), App.Rotation())
sketch5.addGeometry(Part.Circle(V(0, 0, 0), V(0, 0, 1), 59), False)
sketch5.addGeometry(Part.LineSegment(V(36, -21, 0), V(0, 42, 0)), False)
sketch5.addGeometry(Part.LineSegment(V(0, 42, 0), V(-36, -21, 0)), False)
sketch5.addGeometry(Part.LineSegment(V(-36, -21, 0), V(36, -21, 0)), False)
sketch5.addConstraint(Sketcher.Constraint("Coincident", 1, 2, 2, 1))
sketch5.addConstraint(Sketcher.Constraint("Coincident", 2, 2, 3, 1))
sketch5.addConstraint(Sketcher.Constraint("Coincident", 3, 2, 1, 1))
sketch5.addConstraint(Sketcher.Constraint("Horizontal", 3))
sketch5.addConstraint(Sketcher.Constraint("Coincident", 0, 3, -1, 1))
sketch5.addConstraint(Sketcher.Constraint("PointOnObject", 1, 2, -2))
sketch5.addConstraint(Sketcher.Constraint("Equal", 1, 2))
sketch5.addConstraint(Sketcher.Constraint("Angle", 1, Q("120 deg")))
sketch5.addConstraint(Sketcher.Constraint("DistanceY", -1, 1, 1, 2, Q("42 mm")))
sketch5.addConstraint(Sketcher.Constraint("DistanceY", 2, 2, -1, 1, Q("21 mm")))
sketch5.addConstraint(Sketcher.Constraint("Diameter", 0, Q("118.262731 mm")))
pocket1 = body.newObject("PartDesign::Pocket", "Pocket")
pocket1.Profile = sketch5
pocket1.Length = 10
pocket1.Reversed = True
doc.recompute()

fillet = body.newObject("PartDesign::Fillet", "Fillet")
fillet.Base = (pocket1, edges_at(pocket1, [
    (-4.187, 34.749, 8.5),
    (-32.187, -13.749, 8.5),
    (-28, -21, 8.5),
    (28, -21, 8.5),
    (32.187, -13.749, 8.5),
    (4.187, 34.749, 8.5),
]))
fillet.Radius = 6

doc.recompute()
